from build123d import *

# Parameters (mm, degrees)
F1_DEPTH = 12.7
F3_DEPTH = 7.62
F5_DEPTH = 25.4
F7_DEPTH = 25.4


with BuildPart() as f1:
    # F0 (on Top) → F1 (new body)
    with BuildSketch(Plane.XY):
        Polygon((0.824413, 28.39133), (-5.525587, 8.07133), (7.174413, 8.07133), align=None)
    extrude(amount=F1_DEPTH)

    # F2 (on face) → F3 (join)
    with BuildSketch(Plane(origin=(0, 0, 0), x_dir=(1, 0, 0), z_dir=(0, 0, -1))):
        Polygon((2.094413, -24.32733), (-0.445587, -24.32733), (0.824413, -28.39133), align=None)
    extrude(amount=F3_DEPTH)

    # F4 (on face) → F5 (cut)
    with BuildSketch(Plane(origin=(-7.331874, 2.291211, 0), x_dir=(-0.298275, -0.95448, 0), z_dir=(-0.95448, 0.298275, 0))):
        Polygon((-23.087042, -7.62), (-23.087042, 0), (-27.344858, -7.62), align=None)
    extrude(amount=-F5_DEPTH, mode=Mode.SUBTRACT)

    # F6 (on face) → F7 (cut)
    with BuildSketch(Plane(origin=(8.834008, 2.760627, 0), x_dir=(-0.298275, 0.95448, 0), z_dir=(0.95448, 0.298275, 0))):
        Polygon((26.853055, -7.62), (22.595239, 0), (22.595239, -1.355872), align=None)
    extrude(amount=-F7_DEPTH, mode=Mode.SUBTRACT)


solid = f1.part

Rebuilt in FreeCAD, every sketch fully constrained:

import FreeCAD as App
import Part
import Sketcher

V = App.Vector
Q = App.Units.Quantity


def add_polygon(sketch, points):
    """Adds a closed chain of lines whose ends are joined by coincident constraints."""
    first, n = sketch.GeometryCount, len(points)
    for a, b in zip(points, points[1:] + points[:1]):
        sketch.addGeometry(Part.LineSegment(App.Vector(*a, 0), App.Vector(*b, 0)), False)
    for i in range(n):
        sketch.addConstraint(Sketcher.Constraint("Coincident", first + i, 2, first + (i + 1) % n, 1))

doc = App.newDocument("Part")
params = doc.addObject("Spreadsheet::Sheet", "Params")
for row, (alias, value) in enumerate([
    ("sketch1_width", "0.5 in"),
    ("pad1_length", "0.5 in"),
    ("sketch2_width", "0.1 in"),
    ("pad2_length", "0.3 in"),
    ("sketch3_height", "0.3 in"),
    ("pocket1_length", "1 in"),
    ("pocket2_length", "1 in"),
], start=1):
    params.set(f"A{row}", alias)
    params.set(f"B{row}", "=" + value)
    params.setAlias(f"B{row}", alias)

body = doc.addObject("PartDesign::Body", "Body")

# Sketch on XY plane
sketch1 = body.newObject("Sketcher::SketchObject", "Sketch")
sketch1.AttachmentSupport = (doc.getObject("XY_Plane"), [""])
sketch1.MapMode = "FlatFace"
add_polygon(sketch1, [(1, 28), (-6, 8), (7, 8)])  # lines 0-2
sketch1.addConstraint(Sketcher.Constraint("Horizontal", 1))
sketch1.addConstraint(Sketcher.Constraint("Equal", 0, 2))
sketch1.addConstraint(Sketcher.Constraint("DistanceX", 1, 1, 1, 2, Q("0.5 in")))
sketch1.addConstraint(Sketcher.Constraint("DistanceY", 0, 2, 2, 2, Q("0.8 in")))
sketch1.addConstraint(Sketcher.Constraint("DistanceY", -1, 1, 0, 2, Q("8.07133 mm")))
sketch1.addConstraint(Sketcher.Constraint("DistanceX", 0, 2, -1, 1, Q("5.525587 mm")))
sketch1.setExpression("Constraints[5]", "Params.sketch1_width")
pad1 = body.newObject("PartDesign::Pad", "Pad")
pad1.Profile = sketch1
pad1.setExpression("Length", "Params.pad1_length")

# Sketch on XY plane
sketch2 = body.newObject("Sketcher::SketchObject", "Sketch001")
sketch2.AttachmentSupport = (doc.getObject("XY_Plane"), [""])
sketch2.MapMode = "FlatFace"
add_polygon(sketch2, [(2.1, 24.3), (-0.4, 24.3), (0.8, 28.4)])  # lines 0-2
sketch2.addConstraint(Sketcher.Constraint("Horizontal", 0))
sketch2.addConstraint(Sketcher.Constraint("Equal", 1, 2))
sketch2.addConstraint(Sketcher.Constraint("DistanceX", 0, 2, 0, 1, Q("0.1 in")))
sketch2.addConstraint(Sketcher.Constraint("DistanceY", 0, 2, 1, 2, Q("0.16 in")))
sketch2.addConstraint(Sketcher.Constraint("DistanceY", -1, 1, 0, 2, Q("24.32733 mm")))
sketch2.addConstraint(Sketcher.Constraint("DistanceX", 0, 2, -1, 1, Q("0.445587 mm")))
sketch2.setExpression("Constraints[5]", "Params.sketch2_width")
pad2 = body.newObject("PartDesign::Pad", "Pad001")
pad2.Profile = sketch2
pad2.setExpression("Length", "Params.pad2_length")
pad2.Reversed = True

# Sketch on an angled plane
sketch3 = body.newObject("Sketcher::SketchObject", "Sketch002")
sketch3.Placement = App.Placement(V(-7.331874, 2.291211, 0), App.Rotation(V(-0.298274993, -0.954479978, 0), V(0, 0, 1), V(-0.954479978, 0.298274993, 0), "ZXY"))
add_polygon(sketch3, [(-23.1, -7.6), (-23.1, 0), (-27.3, -7.6)])  # lines 0-2
sketch3.addConstraint(Sketcher.Constraint("Vertical", 0))
sketch3.addConstraint(Sketcher.Constraint("Horizontal", 2))
sketch3.addConstraint(Sketcher.Constraint("PointOnObject", 0, 2, -1))
sketch3.addConstraint(Sketcher.Constraint("DistanceY", 0, 1, 0, 2, Q("0.3 in")))
sketch3.addConstraint(Sketcher.Constraint("DistanceX", 2, 1, 2, 2, Q("4.257816 mm")))
sketch3.addConstraint(Sketcher.Constraint("DistanceX", 0, 2, -1, 1, Q("23.087042 mm")))
sketch3.setExpression("Constraints[6]", "Params.sketch3_height")
pocket1 = body.newObject("PartDesign::Pocket", "Pocket")
pocket1.Profile = sketch3
pocket1.setExpression("Length", "Params.pocket1_length")

# Sketch on an angled plane
sketch4 = body.newObject("Sketcher::SketchObject", "Sketch003")
sketch4.Placement = App.Placement(V(8.834008, 2.760627, 0), App.Rotation(V(-0.298274993, 0.954479978, 0), V(0, 0, 1), V(0.954479978, 0.298274993, 0), "ZXY"))
add_polygon(sketch4, [(26.9, -7.6), (22.6, 0), (22.6, -1.4)])  # lines 0-2
sketch4.addConstraint(Sketcher.Constraint("Vertical", 1))
sketch4.addConstraint(Sketcher.Constraint("PointOnObject", 0, 2, -1))
sketch4.addConstraint(Sketcher.Constraint("DistanceY", 2, 2, -1, 1, Q("0.3 in")))
sketch4.addConstraint(Sketcher.Constraint("DistanceY", 1, 2, 1, 1, Q("1.355872 mm")))
sketch4.addConstraint(Sketcher.Constraint("DistanceX", -1, 1, 0, 2, Q("22.595239 mm")))
sketch4.addConstraint(Sketcher.Constraint("Distance", 0, Q("8.728883 mm")))
pocket2 = body.newObject("PartDesign::Pocket", "Pocket001")
pocket2.Profile = sketch4
pocket2.setExpression("Length", "Params.pocket2_length")

doc.recompute()
